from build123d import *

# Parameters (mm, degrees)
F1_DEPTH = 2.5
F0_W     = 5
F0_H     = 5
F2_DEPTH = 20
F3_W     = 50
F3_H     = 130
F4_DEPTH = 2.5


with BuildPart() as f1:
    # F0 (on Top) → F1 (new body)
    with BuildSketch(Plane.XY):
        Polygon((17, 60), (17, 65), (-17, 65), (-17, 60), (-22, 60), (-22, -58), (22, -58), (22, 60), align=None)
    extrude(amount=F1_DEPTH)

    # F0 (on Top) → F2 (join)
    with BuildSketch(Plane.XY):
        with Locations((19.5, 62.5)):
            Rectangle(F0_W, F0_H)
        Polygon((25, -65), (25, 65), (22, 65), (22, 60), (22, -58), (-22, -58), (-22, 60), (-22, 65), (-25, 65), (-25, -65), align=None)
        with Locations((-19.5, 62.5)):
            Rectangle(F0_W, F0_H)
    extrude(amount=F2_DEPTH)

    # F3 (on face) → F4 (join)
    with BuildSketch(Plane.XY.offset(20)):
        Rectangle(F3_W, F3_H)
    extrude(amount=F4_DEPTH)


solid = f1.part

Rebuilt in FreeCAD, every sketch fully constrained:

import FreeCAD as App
import Part
import Sketcher
from FreeCAD import Vector
Q = App.Units.Quantity


def add_polygon(sketch, points):
    """Adds a closed chain of lines whose ends are joined by coincident constraints."""
    first, n = sketch.GeometryCount, len(points)
    for a, b in zip(points, points[1:] + points[:1]):
        sketch.addGeometry(Part.LineSegment(App.Vector(*a, 0), App.Vector(*b, 0)), False)
    for i in range(n):
        sketch.addConstraint(Sketcher.Constraint("Coincident", first + i, 2, first + (i + 1) % n, 1))

doc = App.newDocument("Part")
body = doc.addObject("PartDesign::Body", "Body")

# Sketch on XY plane
sketch1 = body.newObject("Sketcher::SketchObject", "Sketch")
sketch1.AttachmentSupport = (doc.getObject("XY_Plane"), [""])
sketch1.MapMode = "FlatFace"
add_polygon(sketch1, [(17, 60), (17, 65), (-17, 65), (-17, 60), (-22, 60), (-22, -58), (22, -58), (22, 60)])  # lines 0-7
sketch1.addConstraint([
    Sketcher.Constraint("Vertical", 0),
    Sketcher.Constraint("Horizontal", 1),
    Sketcher.Constraint("Vertical", 2),
    Sketcher.Constraint("Horizontal", 3),
    Sketcher.Constraint("Vertical", 4),
    Sketcher.Constraint("Horizontal", 5),
    Sketcher.Constraint("Vertical", 6),
    Sketcher.Constraint("Horizontal", 7),
    Sketcher.Constraint("Symmetric", 3, 2, 6, 2, -2),
    Sketcher.Constraint("Equal", 3, 7),
    Sketcher.Constraint("Equal", 7, 0),
    Sketcher.Constraint("DistanceX", 1, 2, 1, 1, Q("34 mm")),
    Sketcher.Constraint("DistanceX", 3, 2, 3, 1, Q("5 mm")),
    Sketcher.Constraint("DistanceY", 4, 2, 4, 1, Q("118 mm")),
    Sketcher.Constraint("DistanceY", -1, 1, 0, 2, Q("65 mm")),
])
pad1 = body.newObject("PartDesign::Pad", "Pad")
pad1.Profile = sketch1
pad1.Length = 2.5

# Sketch on XY plane
sketch2 = body.newObject("Sketcher::SketchObject", "Sketch001")
sketch2.AttachmentSupport = (doc.getObject("XY_Plane"), [""])
sketch2.MapMode = "FlatFace"
add_polygon(sketch2, [(17, 65), (17, 60), (22, 60), (22, -58), (-22, -58), (-22, 60), (-17, 60), (-17, 65), (-25, 65), (-25, -65), (25, -65), (25, 65)])  # lines 0-11
sketch2.addConstraint([
    Sketcher.Constraint("Vertical", 0),
    Sketcher.Constraint("Horizontal", 1),
    Sketcher.Constraint("Vertical", 2),
    Sketcher.Constraint("Horizontal", 3),
    Sketcher.Constraint("Vertical", 4),
    Sketcher.Constraint("Horizontal", 5),
    Sketcher.Constraint("Vertical", 6),
    Sketcher.Constraint("Horizontal", 7),
    Sketcher.Constraint("Vertical", 8),
    Sketcher.Constraint("Horizontal", 9),
    Sketcher.Constraint("Vertical", 10),
    Sketcher.Constraint("Horizontal", 11),
    Sketcher.Constraint("Symmetric", 7, 2, 9, 2, -1, 1),
    Sketcher.Constraint("Symmetric", 1, 2, 4, 2, -2),
    Sketcher.Constraint("Symmetric", 6, 2, 11, 2, -2),
    Sketcher.Constraint("Equal", 5, 0),
    Sketcher.Constraint("DistanceX", 1, 1, 1, 2, Q("5 mm")),
    Sketcher.Constraint("DistanceX", 3, 2, 3, 1, Q("44 mm")),
    Sketcher.Constraint("DistanceX", 7, 2, 7, 1, Q("8 mm")),
    Sketcher.Constraint("DistanceY", 2, 2, 2, 1, Q("118 mm")),
    Sketcher.Constraint("DistanceY", 8, 2, 8, 1, Q("130 mm")),
])
pad2 = body.newObject("PartDesign::Pad", "Pad001")
pad2.Profile = sketch2
pad2.Length = 20

# Sketch on XY plane
sketch3 = body.newObject("Sketcher::SketchObject", "Sketch002")
sketch3.AttachmentSupport = (doc.getObject("XY_Plane"), [""])
sketch3.MapMode = "FlatFace"
sketch3.AttachmentOffset = App.Placement(Vector(0, 0, 20), App.Rotation())
add_polygon(sketch3, [(-25, 65), (-25, -65), (25, -65), (25, 65)])  # lines 0-3
sketch3.addConstraint([
    Sketcher.Constraint("Vertical", 0),
    Sketcher.Constraint("Horizontal", 1),
    Sketcher.Constraint("Vertical", 2),
    Sketcher.Constraint("Horizontal", 3),
    Sketcher.Constraint("Symmetric", 0, 2, 2, 2, -1, 1),
    Sketcher.Constraint("DistanceX", 1, 1, 1, 2, Q("50 mm")),
    Sketcher.Constraint("DistanceY", 0, 2, 0, 1, Q("130 mm")),
])
pad3 = body.newObject("PartDesign::Pad", "Pad002")
pad3.Profile = sketch3
pad3.Length = 2.5

doc.recompute()
